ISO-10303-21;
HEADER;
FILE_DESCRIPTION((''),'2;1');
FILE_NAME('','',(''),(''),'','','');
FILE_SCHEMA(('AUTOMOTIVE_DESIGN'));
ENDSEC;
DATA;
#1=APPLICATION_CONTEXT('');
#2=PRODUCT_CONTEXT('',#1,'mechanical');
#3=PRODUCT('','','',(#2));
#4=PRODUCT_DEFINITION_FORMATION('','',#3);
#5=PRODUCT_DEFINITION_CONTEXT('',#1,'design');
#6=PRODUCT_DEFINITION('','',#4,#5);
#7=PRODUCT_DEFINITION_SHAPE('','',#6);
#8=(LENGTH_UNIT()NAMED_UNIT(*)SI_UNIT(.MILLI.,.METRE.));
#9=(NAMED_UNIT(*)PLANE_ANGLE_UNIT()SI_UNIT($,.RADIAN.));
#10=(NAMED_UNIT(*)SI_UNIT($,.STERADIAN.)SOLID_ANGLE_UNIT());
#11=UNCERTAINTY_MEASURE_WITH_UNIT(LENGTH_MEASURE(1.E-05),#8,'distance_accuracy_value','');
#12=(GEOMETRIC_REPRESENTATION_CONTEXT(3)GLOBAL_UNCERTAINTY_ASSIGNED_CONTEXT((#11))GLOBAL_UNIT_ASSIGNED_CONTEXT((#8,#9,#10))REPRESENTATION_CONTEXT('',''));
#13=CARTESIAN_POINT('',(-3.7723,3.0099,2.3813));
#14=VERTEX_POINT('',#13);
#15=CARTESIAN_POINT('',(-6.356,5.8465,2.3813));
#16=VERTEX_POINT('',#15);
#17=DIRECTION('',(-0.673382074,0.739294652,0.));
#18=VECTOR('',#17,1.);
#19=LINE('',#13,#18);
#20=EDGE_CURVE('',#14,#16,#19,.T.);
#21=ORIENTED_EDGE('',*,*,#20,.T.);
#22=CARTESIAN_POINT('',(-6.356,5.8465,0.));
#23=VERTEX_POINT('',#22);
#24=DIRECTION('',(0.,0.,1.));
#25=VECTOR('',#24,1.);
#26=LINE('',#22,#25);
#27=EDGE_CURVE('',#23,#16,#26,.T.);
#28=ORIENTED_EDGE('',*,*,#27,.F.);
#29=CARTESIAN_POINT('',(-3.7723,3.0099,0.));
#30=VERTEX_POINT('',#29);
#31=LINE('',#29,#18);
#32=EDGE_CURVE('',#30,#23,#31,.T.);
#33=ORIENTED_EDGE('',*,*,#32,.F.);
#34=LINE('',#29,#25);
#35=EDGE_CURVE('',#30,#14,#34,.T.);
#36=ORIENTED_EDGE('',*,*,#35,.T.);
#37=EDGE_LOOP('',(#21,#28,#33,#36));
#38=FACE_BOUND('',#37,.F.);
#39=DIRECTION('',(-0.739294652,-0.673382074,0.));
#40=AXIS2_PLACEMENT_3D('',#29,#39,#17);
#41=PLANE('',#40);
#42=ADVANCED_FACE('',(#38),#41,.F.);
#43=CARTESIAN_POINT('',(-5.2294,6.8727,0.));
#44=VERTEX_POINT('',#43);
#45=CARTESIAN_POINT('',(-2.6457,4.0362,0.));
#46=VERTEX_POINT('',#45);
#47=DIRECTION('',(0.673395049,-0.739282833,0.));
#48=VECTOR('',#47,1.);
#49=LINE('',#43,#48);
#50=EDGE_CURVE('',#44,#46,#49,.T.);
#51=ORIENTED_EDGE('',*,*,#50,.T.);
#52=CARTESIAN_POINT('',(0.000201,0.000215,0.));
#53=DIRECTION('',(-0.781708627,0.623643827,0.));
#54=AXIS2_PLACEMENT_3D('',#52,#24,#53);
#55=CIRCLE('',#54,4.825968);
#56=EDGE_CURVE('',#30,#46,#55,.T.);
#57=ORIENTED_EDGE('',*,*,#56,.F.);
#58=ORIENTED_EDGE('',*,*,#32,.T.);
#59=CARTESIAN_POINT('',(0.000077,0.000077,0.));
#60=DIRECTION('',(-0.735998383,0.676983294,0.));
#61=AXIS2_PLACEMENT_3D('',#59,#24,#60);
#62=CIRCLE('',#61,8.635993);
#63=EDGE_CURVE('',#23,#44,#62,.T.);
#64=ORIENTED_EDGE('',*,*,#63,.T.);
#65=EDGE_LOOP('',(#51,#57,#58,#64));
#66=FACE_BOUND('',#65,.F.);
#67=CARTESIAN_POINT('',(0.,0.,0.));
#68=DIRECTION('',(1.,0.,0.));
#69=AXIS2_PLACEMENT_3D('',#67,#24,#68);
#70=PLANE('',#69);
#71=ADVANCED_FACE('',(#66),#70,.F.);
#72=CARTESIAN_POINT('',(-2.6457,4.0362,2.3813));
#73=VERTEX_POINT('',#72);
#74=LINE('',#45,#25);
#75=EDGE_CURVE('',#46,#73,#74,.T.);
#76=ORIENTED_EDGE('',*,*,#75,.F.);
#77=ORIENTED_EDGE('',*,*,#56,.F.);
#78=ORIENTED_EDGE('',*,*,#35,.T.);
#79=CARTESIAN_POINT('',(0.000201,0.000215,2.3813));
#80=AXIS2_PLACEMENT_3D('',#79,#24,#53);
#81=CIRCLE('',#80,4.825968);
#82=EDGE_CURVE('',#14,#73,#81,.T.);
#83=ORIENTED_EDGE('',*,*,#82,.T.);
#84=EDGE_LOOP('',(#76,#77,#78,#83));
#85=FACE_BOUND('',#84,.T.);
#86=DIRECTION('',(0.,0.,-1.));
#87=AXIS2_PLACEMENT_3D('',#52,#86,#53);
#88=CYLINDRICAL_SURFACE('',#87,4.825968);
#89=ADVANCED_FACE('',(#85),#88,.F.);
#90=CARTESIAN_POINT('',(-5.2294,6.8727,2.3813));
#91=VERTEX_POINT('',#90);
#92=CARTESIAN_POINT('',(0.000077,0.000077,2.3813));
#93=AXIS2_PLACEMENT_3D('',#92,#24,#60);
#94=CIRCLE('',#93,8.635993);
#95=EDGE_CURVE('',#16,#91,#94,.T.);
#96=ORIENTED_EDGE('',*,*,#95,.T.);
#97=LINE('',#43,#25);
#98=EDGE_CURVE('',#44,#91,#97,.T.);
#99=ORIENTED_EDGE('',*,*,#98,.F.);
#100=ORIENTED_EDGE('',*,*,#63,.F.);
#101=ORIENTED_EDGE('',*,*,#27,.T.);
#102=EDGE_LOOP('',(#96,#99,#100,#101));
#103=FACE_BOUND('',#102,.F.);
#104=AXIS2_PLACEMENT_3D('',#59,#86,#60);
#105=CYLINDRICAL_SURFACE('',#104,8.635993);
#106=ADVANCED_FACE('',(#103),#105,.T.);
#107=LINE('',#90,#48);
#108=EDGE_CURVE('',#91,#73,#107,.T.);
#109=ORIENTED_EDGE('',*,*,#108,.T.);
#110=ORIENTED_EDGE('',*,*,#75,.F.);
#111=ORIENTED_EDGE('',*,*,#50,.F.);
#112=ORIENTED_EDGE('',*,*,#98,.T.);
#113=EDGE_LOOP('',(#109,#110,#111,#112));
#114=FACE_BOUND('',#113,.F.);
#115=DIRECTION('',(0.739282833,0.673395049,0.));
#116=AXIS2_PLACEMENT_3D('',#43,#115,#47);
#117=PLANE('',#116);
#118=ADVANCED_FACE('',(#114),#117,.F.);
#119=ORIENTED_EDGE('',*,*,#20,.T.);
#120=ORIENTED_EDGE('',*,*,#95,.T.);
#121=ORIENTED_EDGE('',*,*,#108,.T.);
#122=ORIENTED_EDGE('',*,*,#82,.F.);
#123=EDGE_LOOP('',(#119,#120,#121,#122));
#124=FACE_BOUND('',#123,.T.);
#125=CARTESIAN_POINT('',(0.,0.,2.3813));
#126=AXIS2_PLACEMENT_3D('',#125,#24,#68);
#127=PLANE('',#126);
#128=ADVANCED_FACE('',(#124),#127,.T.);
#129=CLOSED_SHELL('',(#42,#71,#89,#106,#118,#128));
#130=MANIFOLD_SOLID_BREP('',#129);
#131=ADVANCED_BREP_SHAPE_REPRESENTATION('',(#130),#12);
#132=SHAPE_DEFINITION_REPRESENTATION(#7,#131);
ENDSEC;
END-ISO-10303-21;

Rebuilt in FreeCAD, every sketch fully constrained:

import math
import FreeCAD as App
import Part
import Sketcher
Q = App.Units.Quantity

doc = App.newDocument("Part")
body = doc.addObject("PartDesign::Body", "Body")

sketch1 = body.newObject("Sketcher::SketchObject", "Sketch")
sketch1.AttachmentSupport = (doc.getObject("XY_Plane"), [""])
sketch1.MapMode = "FlatFace"
sketch1.addGeometry(Part.LineSegment(App.Vector(-3.7723, 3.0099, 0), App.Vector(-6.356, 5.8465, 0)), False)
sketch1.addGeometry(Part.ArcOfCircle(Part.Circle(App.Vector(0, 0, 0), App.Vector(0, 0, 1), 8.635989), math.radians(137.390924), math.radians(487.267309)), False)
sketch1.addGeometry(Part.LineSegment(App.Vector(-5.2294, 6.8727, 0), App.Vector(-2.6457, 4.0362, 0)), False)
sketch1.addGeometry(Part.ArcOfCircle(Part.Circle(App.Vector(0, 0, 0), App.Vector(0, 0, 1), 4.825945), math.radians(141.413802), math.radians(483.244552)), False)
sketch1.addConstraint(Sketcher.Constraint("Coincident", 0, 2, 1, 1))
sketch1.addConstraint(Sketcher.Constraint("Coincident", 1, 2, 2, 1))
sketch1.addConstraint(Sketcher.Constraint("Coincident", 2, 2, 3, 2))
sketch1.addConstraint(Sketcher.Constraint("Coincident", 3, 1, 0, 1))
sketch1.addConstraint(Sketcher.Constraint("Coincident", 1, 3, -1, 1))
sketch1.addConstraint(Sketcher.Constraint("Coincident", 3, 3, -1, 1))
sketch1.addConstraint(Sketcher.Constraint("Parallel", 0, 2))
sketch1.addConstraint(Sketcher.Constraint("Equal", 0, 2))
sketch1.addConstraint(Sketcher.Constraint("Radius", 1, Q("0.34 in")))
sketch1.addConstraint(Sketcher.Constraint("Radius", 3, Q("0.19 in")))
sketch1.addConstraint(Sketcher.Constraint("Angle", 2, Q("-47.6704 deg")))
sketch1.addConstraint(Sketcher.Constraint("DistanceY", -1, 1, 2, 2, Q("0.1589 in")))
pad1 = body.newObject("PartDesign::Pad", "Pad")
pad1.Profile = sketch1
pad1.Length = Q("0.093752 in")

doc.recompute()
